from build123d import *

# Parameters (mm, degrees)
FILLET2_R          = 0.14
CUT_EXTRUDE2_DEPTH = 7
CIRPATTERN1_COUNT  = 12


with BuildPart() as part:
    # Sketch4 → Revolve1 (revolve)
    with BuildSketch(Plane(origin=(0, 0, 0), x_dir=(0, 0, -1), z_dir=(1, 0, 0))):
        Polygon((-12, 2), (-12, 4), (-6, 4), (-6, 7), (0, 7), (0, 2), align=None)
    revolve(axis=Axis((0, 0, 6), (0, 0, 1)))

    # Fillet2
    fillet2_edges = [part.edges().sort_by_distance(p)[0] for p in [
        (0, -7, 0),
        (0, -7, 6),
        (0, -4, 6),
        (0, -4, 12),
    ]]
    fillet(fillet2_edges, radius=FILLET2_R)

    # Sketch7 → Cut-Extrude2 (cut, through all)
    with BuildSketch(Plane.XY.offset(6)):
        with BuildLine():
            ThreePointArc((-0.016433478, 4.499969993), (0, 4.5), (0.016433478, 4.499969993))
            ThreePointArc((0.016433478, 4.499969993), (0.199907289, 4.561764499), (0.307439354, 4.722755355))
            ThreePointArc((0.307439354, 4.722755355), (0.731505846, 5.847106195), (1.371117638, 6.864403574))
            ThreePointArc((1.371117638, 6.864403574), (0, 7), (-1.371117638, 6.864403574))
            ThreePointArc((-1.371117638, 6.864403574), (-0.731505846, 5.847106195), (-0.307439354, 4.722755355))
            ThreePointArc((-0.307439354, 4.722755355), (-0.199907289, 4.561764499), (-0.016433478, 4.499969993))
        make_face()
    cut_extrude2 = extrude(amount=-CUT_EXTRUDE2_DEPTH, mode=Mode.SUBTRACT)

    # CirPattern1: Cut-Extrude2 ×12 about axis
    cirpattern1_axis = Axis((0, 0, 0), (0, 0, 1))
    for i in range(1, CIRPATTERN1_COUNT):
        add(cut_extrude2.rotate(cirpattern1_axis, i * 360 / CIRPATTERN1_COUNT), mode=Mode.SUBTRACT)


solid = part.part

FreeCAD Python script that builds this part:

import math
import FreeCAD as App
import Part
import Sketcher

V = App.Vector


def edges_at(feature, points):
    """Names of the edges that pass closest to the given points."""
    edges = feature.Shape.Edges
    near = lambda p: min(range(len(edges)), key=lambda i: edges[i].distToShape(Part.Vertex(*p))[0])
    return sorted({f"Edge{near(p) + 1}" for p in points})


def add_polygon(sketch, points):
    """Adds a closed chain of lines whose ends are joined by coincident constraints."""
    first, n = sketch.GeometryCount, len(points)
    for a, b in zip(points, points[1:] + points[:1]):
        sketch.addGeometry(Part.LineSegment(App.Vector(*a, 0), App.Vector(*b, 0)), False)
    for i in range(n):
        sketch.addConstraint(Sketcher.Constraint("Coincident", first + i, 2, first + (i + 1) % n, 1))

doc = App.newDocument("Part")
body = doc.addObject("PartDesign::Body", "Body")

# Sketch on YZ plane
sketch1 = body.newObject("Sketcher::SketchObject", "Sketch")
sketch1.AttachmentSupport = (doc.getObject("YZ_Plane"), [""])
sketch1.MapMode = "FlatFace"
add_polygon(sketch1, [(4, 12), (2, 12), (2, 0), (7, 0), (7, 6), (4, 6)])  # lines 0-5
sketch1.addConstraint([
    Sketcher.Constraint("Horizontal", 0),
    Sketcher.Constraint("Vertical", 1),
    Sketcher.Constraint("Horizontal", 2),
    Sketcher.Constraint("Vertical", 3),
    Sketcher.Constraint("Horizontal", 4),
    Sketcher.Constraint("Vertical", 5),
    Sketcher.Constraint("PointOnObject", 1, 2, -1),
    Sketcher.Constraint("Equal", 3, 5),
    Sketcher.Constraint("DistanceX", 0, 2, 0, 1, 2.0),
    Sketcher.Constraint("DistanceX", 2, 1, 2, 2, 5.0),
    Sketcher.Constraint("DistanceY", 1, 2, 1, 1, 12.0),
    Sketcher.Constraint("DistanceX", -1, 1, 0, 2, 2.0),
])
revolution = body.newObject("PartDesign::Revolution", "Revolution")
revolution.Profile = sketch1
revolution.ReferenceAxis = (sketch1, ["V_Axis"])
revolution.Angle = 360
doc.recompute()

fillet = body.newObject("PartDesign::Fillet", "Fillet")
fillet.Base = (revolution, edges_at(revolution, [
    (0, -7, 0),
    (0, -7, 6),
    (0, -4, 6),
    (0, -4, 12),
]))
fillet.Radius = 0.14

# Sketch on XY plane
sketch2 = body.newObject("Sketcher::SketchObject", "Sketch001")
sketch2.AttachmentSupport = (doc.getObject("XY_Plane"), [""])
sketch2.MapMode = "FlatFace"
sketch2.AttachmentOffset = App.Placement(V(0, 0, 6), App.Rotation())
sketch2.addGeometry([
    Part.ArcOfCircle(Part.Circle(V(0, 0.000048, 0), V(0, 0, 1), 4.499952), math.radians(89.79076), math.radians(90.20924)),  # 0
    Part.ArcOfCircle(Part.Circle(V(0.017529, 4.79999, 0), V(0, 0, 1), 0.300022), math.radians(-90.209238), math.radians(-14.917594)),  # 1
    Part.ArcOfCircle(Part.Circle(V(6.105222, 3.178178, 0), V(0, 0, 1), 6), math.radians(142.093777), math.radians(165.082406)),  # 2
    Part.ArcOfCircle(Part.Circle(V(0, 0, 0), V(0, 0, 1), 7), math.radians(78.704218), math.radians(101.295782)),  # 3
    Part.ArcOfCircle(Part.Circle(V(-6.105222, 3.178178, 0), V(0, 0, 1), 6), math.radians(14.917594), math.radians(37.906223)),  # 4
    Part.ArcOfCircle(Part.Circle(V(-0.017529, 4.79999, 0), V(0, 0, 1), 0.300022), math.radians(-165.082406), math.radians(-89.790762)),  # 5
], False)
sketch2.addConstraint([
    Sketcher.Constraint("Tangent", 0, 1, 1, 1),
    Sketcher.Constraint("Tangent", 1, 2, 2, 2),
    Sketcher.Constraint("Coincident", 2, 1, 3, 1),
    Sketcher.Constraint("Coincident", 3, 2, 4, 2),
    Sketcher.Constraint("Tangent", 4, 1, 5, 1),
    Sketcher.Constraint("Tangent", 5, 2, 0, 2),
    Sketcher.Constraint("Coincident", 3, 3, -1, 1),
    Sketcher.Constraint("Equal", 2, 4),
    Sketcher.Constraint("Equal", 1, 5),
    Sketcher.Constraint("Symmetric", 2, 3, 4, 3, -2),
    Sketcher.Constraint("PointOnObject", 0, 3, -2),
    Sketcher.Constraint("Radius", 2, 6.0),
    Sketcher.Constraint("Radius", 3, 7.0),
    Sketcher.Constraint("Radius", 0, 4.499952),
    Sketcher.Constraint("Radius", 1, 0.300022),
    Sketcher.Constraint("DistanceX", -1, 1, 1, 3, 0.017529),
    Sketcher.Constraint("DistanceY", -1, 1, 1, 3, 4.79999),
    Sketcher.Constraint("DistanceX", -1, 1, 2, 3, 6.105222),
])
pocket1 = body.newObject("PartDesign::Pocket", "Pocket")
pocket1.Profile = sketch2
pocket1.Type = "ThroughAll"
doc.recompute()

polarpattern = body.newObject("PartDesign::PolarPattern", "PolarPattern")
polarpattern.Originals = [pocket1]
polarpattern.Axis = (doc.getObject("Z_Axis"), [""])
polarpattern.Angle = 360
polarpattern.Occurrences = 12
body.Tip = polarpattern

doc.recompute()
